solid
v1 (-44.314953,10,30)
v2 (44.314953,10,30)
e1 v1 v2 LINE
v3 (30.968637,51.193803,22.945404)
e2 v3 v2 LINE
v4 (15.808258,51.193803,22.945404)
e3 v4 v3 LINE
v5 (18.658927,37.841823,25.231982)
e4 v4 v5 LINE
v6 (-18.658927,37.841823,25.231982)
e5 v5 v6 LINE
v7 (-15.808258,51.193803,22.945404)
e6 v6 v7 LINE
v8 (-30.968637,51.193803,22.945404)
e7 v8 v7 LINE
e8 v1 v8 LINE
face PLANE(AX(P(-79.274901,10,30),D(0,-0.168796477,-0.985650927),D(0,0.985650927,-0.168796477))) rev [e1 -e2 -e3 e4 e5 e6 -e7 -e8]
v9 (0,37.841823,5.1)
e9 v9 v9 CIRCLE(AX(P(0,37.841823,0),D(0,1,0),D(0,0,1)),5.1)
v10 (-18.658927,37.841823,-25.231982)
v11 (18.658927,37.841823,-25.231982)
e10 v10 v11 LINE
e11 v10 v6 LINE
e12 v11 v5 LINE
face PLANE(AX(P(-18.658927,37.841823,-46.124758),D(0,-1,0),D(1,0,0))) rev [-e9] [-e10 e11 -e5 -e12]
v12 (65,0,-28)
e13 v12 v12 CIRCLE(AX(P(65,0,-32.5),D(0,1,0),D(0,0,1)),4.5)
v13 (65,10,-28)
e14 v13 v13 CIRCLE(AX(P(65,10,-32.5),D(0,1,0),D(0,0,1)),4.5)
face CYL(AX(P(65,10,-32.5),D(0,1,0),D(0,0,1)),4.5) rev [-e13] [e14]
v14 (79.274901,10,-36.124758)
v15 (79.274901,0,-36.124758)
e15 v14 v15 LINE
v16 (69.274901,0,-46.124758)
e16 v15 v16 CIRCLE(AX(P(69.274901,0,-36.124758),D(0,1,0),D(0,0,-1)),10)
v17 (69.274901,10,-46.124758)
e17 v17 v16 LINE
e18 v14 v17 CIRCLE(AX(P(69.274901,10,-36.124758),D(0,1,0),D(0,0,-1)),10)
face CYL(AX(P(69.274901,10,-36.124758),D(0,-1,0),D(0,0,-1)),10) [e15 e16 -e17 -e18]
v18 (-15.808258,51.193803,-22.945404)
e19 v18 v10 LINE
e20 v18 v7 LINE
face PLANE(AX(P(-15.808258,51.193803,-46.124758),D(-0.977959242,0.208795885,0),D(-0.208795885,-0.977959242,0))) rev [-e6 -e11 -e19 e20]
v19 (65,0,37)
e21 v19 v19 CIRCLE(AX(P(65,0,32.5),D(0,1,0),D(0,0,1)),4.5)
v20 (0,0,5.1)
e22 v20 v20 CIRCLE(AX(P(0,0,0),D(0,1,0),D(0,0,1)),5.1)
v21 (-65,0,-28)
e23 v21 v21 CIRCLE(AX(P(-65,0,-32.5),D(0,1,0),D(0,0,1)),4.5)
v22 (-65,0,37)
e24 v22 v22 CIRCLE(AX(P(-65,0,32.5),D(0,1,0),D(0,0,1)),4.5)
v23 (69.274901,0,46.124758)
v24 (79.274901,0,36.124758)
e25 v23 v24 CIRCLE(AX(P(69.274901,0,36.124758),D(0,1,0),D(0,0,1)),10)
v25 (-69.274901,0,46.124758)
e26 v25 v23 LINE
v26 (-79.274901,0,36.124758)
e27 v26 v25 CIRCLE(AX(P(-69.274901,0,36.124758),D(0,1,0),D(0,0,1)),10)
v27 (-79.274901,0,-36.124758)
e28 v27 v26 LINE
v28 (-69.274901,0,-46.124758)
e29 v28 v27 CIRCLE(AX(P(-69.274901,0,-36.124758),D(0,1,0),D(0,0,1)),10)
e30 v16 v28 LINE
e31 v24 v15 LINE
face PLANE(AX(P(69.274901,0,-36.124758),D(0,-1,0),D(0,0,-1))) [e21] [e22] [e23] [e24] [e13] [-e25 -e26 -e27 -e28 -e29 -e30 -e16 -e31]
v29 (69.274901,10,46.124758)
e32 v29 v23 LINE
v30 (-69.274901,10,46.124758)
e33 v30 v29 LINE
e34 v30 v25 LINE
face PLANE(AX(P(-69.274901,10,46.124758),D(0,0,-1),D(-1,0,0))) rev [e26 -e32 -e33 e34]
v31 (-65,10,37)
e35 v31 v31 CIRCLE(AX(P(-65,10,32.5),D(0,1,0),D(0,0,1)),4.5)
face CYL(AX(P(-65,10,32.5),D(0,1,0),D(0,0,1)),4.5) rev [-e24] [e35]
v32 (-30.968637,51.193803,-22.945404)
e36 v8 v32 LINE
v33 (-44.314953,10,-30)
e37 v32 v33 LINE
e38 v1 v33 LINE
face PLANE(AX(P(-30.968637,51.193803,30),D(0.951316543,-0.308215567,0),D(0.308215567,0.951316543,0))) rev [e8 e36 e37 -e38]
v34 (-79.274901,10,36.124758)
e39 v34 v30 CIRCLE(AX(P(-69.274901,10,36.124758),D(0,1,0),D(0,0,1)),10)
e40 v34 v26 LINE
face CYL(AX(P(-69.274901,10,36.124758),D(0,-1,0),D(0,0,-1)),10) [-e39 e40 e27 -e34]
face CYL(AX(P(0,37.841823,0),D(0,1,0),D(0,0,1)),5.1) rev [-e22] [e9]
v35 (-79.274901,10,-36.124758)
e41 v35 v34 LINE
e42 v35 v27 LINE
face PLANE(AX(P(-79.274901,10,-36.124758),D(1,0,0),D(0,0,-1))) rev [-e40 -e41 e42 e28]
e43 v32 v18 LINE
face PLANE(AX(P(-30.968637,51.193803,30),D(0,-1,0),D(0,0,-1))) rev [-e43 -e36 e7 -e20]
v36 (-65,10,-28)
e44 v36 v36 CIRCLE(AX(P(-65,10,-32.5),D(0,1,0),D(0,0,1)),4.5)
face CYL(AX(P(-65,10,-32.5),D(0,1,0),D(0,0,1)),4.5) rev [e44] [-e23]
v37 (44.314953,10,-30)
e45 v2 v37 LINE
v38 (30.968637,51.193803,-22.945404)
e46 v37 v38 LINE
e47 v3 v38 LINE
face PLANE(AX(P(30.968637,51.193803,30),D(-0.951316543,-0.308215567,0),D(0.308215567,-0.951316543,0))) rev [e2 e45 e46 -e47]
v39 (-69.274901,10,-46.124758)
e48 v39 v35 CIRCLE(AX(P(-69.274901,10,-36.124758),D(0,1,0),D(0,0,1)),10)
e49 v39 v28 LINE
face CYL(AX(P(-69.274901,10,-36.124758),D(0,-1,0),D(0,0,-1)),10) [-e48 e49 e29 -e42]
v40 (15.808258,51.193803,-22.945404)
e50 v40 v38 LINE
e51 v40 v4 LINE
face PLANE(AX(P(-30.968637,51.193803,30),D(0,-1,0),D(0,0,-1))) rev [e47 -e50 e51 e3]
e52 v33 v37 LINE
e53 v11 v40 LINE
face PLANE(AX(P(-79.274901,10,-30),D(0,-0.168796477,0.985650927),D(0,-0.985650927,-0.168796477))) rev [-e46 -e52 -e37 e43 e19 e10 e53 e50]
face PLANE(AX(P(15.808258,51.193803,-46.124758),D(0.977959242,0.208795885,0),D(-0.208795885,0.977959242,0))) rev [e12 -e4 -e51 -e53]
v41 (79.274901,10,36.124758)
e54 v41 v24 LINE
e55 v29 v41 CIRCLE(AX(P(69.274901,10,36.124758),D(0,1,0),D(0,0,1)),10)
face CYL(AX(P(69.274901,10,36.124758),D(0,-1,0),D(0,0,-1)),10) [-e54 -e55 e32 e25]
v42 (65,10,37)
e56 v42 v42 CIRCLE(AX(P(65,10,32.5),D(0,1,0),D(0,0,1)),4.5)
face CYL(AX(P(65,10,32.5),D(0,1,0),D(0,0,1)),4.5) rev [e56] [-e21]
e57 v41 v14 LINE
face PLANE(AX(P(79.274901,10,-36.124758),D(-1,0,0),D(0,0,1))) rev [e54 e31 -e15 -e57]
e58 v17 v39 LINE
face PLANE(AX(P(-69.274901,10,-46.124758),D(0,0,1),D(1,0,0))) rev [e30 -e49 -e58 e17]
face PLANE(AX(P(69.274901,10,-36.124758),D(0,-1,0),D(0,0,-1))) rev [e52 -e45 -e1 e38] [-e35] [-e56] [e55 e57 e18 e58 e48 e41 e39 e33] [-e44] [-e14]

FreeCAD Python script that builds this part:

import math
import FreeCAD as App
import Part
import Sketcher

V = App.Vector

doc = App.newDocument("Part")
params = doc.addObject("Spreadsheet::Sheet", "Params")
for row, (alias, value) in enumerate([
    ("sketch1_radius", "10 mm"),
    ("pad1_length", "10 mm"),
    ("pad2_length", "60 mm"),
    ("sketch5_diameter", "9 mm"),
    ("hole_diameter", "9 mm"),
    ("sketch6_diameter", "10.2 mm"),
    ("hole2_diameter", "10.2 mm"),
], start=1):
    params.set(f"A{row}", alias)
    params.set(f"B{row}", "=" + value)
    params.setAlias(f"B{row}", alias)

body = doc.addObject("PartDesign::Body", "Body")

# Sketch on XZ plane
sketch1 = body.newObject("Sketcher::SketchObject", "Sketch")
sketch1.AttachmentSupport = (doc.getObject("XZ_Plane"), [""])
sketch1.MapMode = "FlatFace"
sketch1.addGeometry([
    Part.LineSegment(V(69, -46, 0), V(-69, -46, 0)),  # 0
    Part.ArcOfCircle(Part.Circle(V(-69, -36, 0), V(0, 0, 1), 10), math.radians(-180), math.radians(-90)),  # 1
    Part.LineSegment(V(-79, -36, 0), V(-79, 36, 0)),  # 2
    Part.ArcOfCircle(Part.Circle(V(-69, 36, 0), V(0, 0, 1), 10), math.radians(90), math.radians(180)),  # 3
    Part.LineSegment(V(-69, 46, 0), V(69, 46, 0)),  # 4
    Part.ArcOfCircle(Part.Circle(V(69, 36, 0), V(0, 0, 1), 10), math.radians(0), math.radians(90)),  # 5
    Part.LineSegment(V(79, 36, 0), V(79, -36, 0)),  # 6
    Part.ArcOfCircle(Part.Circle(V(69, -36, 0), V(0, 0, 1), 10), math.radians(-90), math.radians(0)),  # 7
], False)
sketch1.addConstraint([
    Sketcher.Constraint("Tangent", 0, 2, 1, 2),
    Sketcher.Constraint("Tangent", 1, 1, 2, 1),
    Sketcher.Constraint("Tangent", 2, 2, 3, 2),
    Sketcher.Constraint("Tangent", 3, 1, 4, 1),
    Sketcher.Constraint("Tangent", 4, 2, 5, 2),
    Sketcher.Constraint("Tangent", 5, 1, 6, 1),
    Sketcher.Constraint("Tangent", 6, 2, 7, 2),
    Sketcher.Constraint("Tangent", 7, 1, 0, 1),
    Sketcher.Constraint("Horizontal", 0),
    Sketcher.Constraint("Vertical", 2),
    Sketcher.Constraint("Horizontal", 4),
    Sketcher.Constraint("Vertical", 6),
    Sketcher.Constraint("Equal", 1, 3),
    Sketcher.Constraint("Equal", 3, 5),
    Sketcher.Constraint("Equal", 5, 7),
    Sketcher.Constraint("Symmetric", 1, 3, 5, 3, -1, 1),
    Sketcher.Constraint("Radius", 1, 10.0),
    Sketcher.Constraint("DistanceX", 1, 3, -1, 1, 69.274901),
    Sketcher.Constraint("DistanceY", 2, 1, 2, 2, 72.249517),
])
sketch1.setExpression("Constraints[16]", "Params.sketch1_radius")
pad1 = body.newObject("PartDesign::Pad", "Pad")
pad1.Profile = sketch1
pad1.setExpression("Length", "Params.pad1_length")
pad1.Reversed = True

# Sketch on XY plane
sketch2 = body.newObject("Sketcher::SketchObject", "Sketch001")
sketch2.AttachmentSupport = (doc.getObject("XY_Plane"), [""])
sketch2.MapMode = "FlatFace"
sketch2.addGeometry([
    Part.LineSegment(V(-31, 51, 0), V(-44, 10, 0)),
    Part.LineSegment(V(-44, 10, 0), V(44, 10, 0)),
    Part.LineSegment(V(44, 10, 0), V(31, 51, 0)),
    Part.LineSegment(V(31, 51, 0), V(-31, 51, 0)),
], False)
sketch2.addConstraint([
    Sketcher.Constraint("Coincident", 0, 2, 1, 1),
    Sketcher.Constraint("Coincident", 1, 2, 2, 1),
    Sketcher.Constraint("Coincident", 2, 2, 3, 1),
    Sketcher.Constraint("Coincident", 3, 2, 0, 1),
    Sketcher.Constraint("Horizontal", 1),
    Sketcher.Constraint("Horizontal", 3),
    Sketcher.Constraint("Equal", 0, 2),
    Sketcher.Constraint("DistanceY", -1, 1, 0, 2, 10.0),
    Sketcher.Constraint("Distance", 0, 43.301889),
    Sketcher.Constraint("DistanceX", 1, 1, 1, 2, 88.629905),
    Sketcher.Constraint("DistanceX", 3, 2, 3, 1, 61.937273),
    Sketcher.Constraint("DistanceX", 0, 2, -1, 1, 44.314953),
])
pad2 = body.newObject("PartDesign::Pad", "Pad001")
pad2.Profile = sketch2
pad2.setExpression("Length", "Params.pad2_length")
pad2.Midplane = True

# Sketch on YZ plane
sketch3 = body.newObject("Sketcher::SketchObject", "Sketch002")
sketch3.AttachmentSupport = (doc.getObject("YZ_Plane"), [""])
sketch3.MapMode = "FlatFace"
sketch3.addGeometry([
    Part.LineSegment(V(10, 30, 0), V(51, 23, 0)),  # 0
    Part.LineSegment(V(51, 23, 0), V(51, 30, 0)),  # 1
    Part.LineSegment(V(51, 30, 0), V(10, 30, 0)),  # 2
    Part.LineSegment(V(10, -30, 0), V(51, -30, 0)),  # 3
    Part.LineSegment(V(51, -30, 0), V(51, -23, 0)),  # 4
    Part.LineSegment(V(51, -23, 0), V(10, -30, 0)),  # 5
], False)
sketch3.addConstraint([
    Sketcher.Constraint("Coincident", 0, 2, 1, 1),
    Sketcher.Constraint("Coincident", 1, 2, 2, 1),
    Sketcher.Constraint("Coincident", 2, 2, 0, 1),
    Sketcher.Constraint("Coincident", 3, 2, 4, 1),
    Sketcher.Constraint("Coincident", 4, 2, 5, 1),
    Sketcher.Constraint("Coincident", 5, 2, 3, 1),
    Sketcher.Constraint("Vertical", 1),
    Sketcher.Constraint("Horizontal", 2),
    Sketcher.Constraint("Horizontal", 3),
    Sketcher.Constraint("Vertical", 4),
    Sketcher.Constraint("Symmetric", 1, 2, 3, 2, -1),
    Sketcher.Constraint("Vertical", 2, 2, 5, 2),
    Sketcher.Constraint("Equal", 1, 4),
    Sketcher.Constraint("DistanceY", -1, 1, 1, 2, 30.0),
    Sketcher.Constraint("DistanceX", -1, 1, 2, 2, 10.0),
    Sketcher.Constraint("Distance", 0, 41.793501),
    Sketcher.Constraint("DistanceX", 2, 2, 2, 1, 41.193803),
])
pocket1 = body.newObject("PartDesign::Pocket", "Pocket")
pocket1.Profile = sketch3
pocket1.Type = "ThroughAll"
pocket1.Midplane = True

# Sketch on XY plane
sketch4 = body.newObject("Sketcher::SketchObject", "Sketch003")
sketch4.AttachmentSupport = (doc.getObject("XY_Plane"), [""])
sketch4.MapMode = "FlatFace"
sketch4.addGeometry([
    Part.LineSegment(V(-16, 51, 0), V(-19, 38, 0)),
    Part.LineSegment(V(-19, 38, 0), V(19, 38, 0)),
    Part.LineSegment(V(19, 38, 0), V(16, 51, 0)),
    Part.LineSegment(V(16, 51, 0), V(-16, 51, 0)),
], False)
sketch4.addConstraint([
    Sketcher.Constraint("Coincident", 0, 2, 1, 1),
    Sketcher.Constraint("Coincident", 1, 2, 2, 1),
    Sketcher.Constraint("Coincident", 2, 2, 3, 1),
    Sketcher.Constraint("Coincident", 3, 2, 0, 1),
    Sketcher.Constraint("Horizontal", 1),
    Sketcher.Constraint("Horizontal", 3),
    Sketcher.Constraint("Equal", 0, 2),
    Sketcher.Constraint("Distance", 0, 13.652901),
    Sketcher.Constraint("DistanceX", 1, 1, 1, 2, 37.317855),
    Sketcher.Constraint("DistanceX", 3, 2, 3, 1, 31.616516),
    Sketcher.Constraint("DistanceX", 0, 2, -1, 1, 18.658927),
    Sketcher.Constraint("DistanceY", -1, 1, 0, 2, 37.841823),
])
pocket2 = body.newObject("PartDesign::Pocket", "Pocket001")
pocket2.Profile = sketch4
pocket2.Type = "ThroughAll"
pocket2.Midplane = True

# Sketch on XZ plane
sketch5 = body.newObject("Sketcher::SketchObject", "Sketch004")
sketch5.AttachmentSupport = (doc.getObject("XZ_Plane"), [""])
sketch5.MapMode = "FlatFace"
sketch5.AttachmentOffset = App.Placement(V(0, 0, -10), App.Rotation())
sketch5.addGeometry([
    Part.Circle(V(-65, -32.5, 0), V(0, 0, 1), 4.5),
    Part.Circle(V(65, -32.5, 0), V(0, 0, 1), 4.5),
    Part.Circle(V(65, 32.5, 0), V(0, 0, 1), 4.5),
    Part.Circle(V(-65, 32.5, 0), V(0, 0, 1), 4.5),
], False)
sketch5.addConstraint([
    Sketcher.Constraint("Equal", 0, 1),
    Sketcher.Constraint("Equal", 1, 2),
    Sketcher.Constraint("Equal", 2, 3),
    Sketcher.Constraint("Symmetric", 0, 3, 2, 3, -1, 1),
    Sketcher.Constraint("Symmetric", 1, 3, 3, 3, -1, 1),
    Sketcher.Constraint("Symmetric", 0, 3, 1, 3, -2),
    Sketcher.Constraint("Diameter", 0, 9.0),
    Sketcher.Constraint("DistanceX", 0, 3, -1, 1, 65.0),
    Sketcher.Constraint("DistanceY", 1, 3, 2, 3, 65.0),
])
sketch5.setExpression("Constraints[6]", "Params.sketch5_diameter")
doc.recompute()
hole = body.newObject("PartDesign::Hole", "Hole")
hole.Profile = sketch5
hole.ThreadType = "None"
hole.setExpression("Diameter", "Params.hole_diameter")
hole.DepthType = "ThroughAll"
hole.Reversed = True

# Sketch on XZ plane
sketch6 = body.newObject("Sketcher::SketchObject", "Sketch005")
sketch6.AttachmentSupport = (doc.getObject("XZ_Plane"), [""])
sketch6.MapMode = "FlatFace"
sketch6.AttachmentOffset = App.Placement(V(0, 0, -37.841823), App.Rotation())
sketch6.addGeometry(Part.Circle(V(0, 0, 0), V(0, 0, 1), 5), False)
sketch6.addConstraint([
    Sketcher.Constraint("Coincident", 0, 3, -1, 1),
    Sketcher.Constraint("Diameter", 0, 10.2),
])
sketch6.setExpression("Constraints[1]", "Params.sketch6_diameter")
doc.recompute()
hole2 = body.newObject("PartDesign::Hole", "Hole001")
hole2.Profile = sketch6
hole2.ThreadType = "None"
hole2.setExpression("Diameter", "Params.hole2_diameter")
hole2.DepthType = "ThroughAll"
hole2.Reversed = True

doc.recompute()
